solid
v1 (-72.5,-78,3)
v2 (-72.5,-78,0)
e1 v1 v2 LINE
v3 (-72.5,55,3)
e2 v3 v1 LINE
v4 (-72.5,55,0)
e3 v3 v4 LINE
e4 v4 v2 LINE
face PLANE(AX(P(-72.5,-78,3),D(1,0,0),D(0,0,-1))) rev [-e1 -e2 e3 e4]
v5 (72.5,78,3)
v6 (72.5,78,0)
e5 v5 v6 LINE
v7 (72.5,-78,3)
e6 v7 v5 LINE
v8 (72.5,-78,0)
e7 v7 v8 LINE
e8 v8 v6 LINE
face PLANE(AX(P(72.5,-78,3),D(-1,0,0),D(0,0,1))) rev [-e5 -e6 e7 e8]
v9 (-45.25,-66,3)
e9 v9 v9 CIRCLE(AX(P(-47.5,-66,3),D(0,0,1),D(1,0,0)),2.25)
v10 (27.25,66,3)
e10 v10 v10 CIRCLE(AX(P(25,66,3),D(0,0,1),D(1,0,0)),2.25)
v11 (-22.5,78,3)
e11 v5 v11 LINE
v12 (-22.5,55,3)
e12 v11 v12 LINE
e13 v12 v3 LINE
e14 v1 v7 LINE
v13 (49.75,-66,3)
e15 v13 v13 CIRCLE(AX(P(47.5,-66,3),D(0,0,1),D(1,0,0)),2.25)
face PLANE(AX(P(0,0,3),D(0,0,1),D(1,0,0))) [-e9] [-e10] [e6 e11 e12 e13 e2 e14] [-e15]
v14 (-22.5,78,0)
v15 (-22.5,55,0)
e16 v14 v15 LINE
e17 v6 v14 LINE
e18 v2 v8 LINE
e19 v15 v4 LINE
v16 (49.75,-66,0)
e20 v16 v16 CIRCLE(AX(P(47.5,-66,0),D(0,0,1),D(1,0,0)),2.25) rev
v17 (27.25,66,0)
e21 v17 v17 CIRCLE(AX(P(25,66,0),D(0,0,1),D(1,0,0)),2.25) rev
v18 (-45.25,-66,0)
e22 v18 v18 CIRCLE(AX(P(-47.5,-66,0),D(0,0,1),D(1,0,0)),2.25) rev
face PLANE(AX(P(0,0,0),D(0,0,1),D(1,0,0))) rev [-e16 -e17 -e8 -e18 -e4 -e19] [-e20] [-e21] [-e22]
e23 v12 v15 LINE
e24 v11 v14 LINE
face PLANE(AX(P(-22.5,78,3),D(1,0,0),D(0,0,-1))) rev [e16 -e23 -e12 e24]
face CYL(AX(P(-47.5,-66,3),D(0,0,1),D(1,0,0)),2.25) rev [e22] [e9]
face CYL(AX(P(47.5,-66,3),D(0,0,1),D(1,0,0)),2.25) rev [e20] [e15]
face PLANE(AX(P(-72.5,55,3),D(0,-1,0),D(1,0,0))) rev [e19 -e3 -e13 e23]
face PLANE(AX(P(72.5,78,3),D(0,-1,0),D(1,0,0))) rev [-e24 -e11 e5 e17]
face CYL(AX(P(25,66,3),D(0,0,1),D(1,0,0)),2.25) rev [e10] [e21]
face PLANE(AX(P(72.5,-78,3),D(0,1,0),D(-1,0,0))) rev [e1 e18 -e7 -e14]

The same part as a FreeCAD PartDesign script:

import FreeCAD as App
import Part
import Sketcher
from FreeCAD import Vector
Q = App.Units.Quantity

doc = App.newDocument("Part")
params = doc.addObject("Spreadsheet::Sheet", "Params")
for row, (alias, value) in enumerate([
    ("sketch1_width", "145 mm"),
    ("sketch1_height", "156 mm"),
    ("pad1_length", "3 mm"),
    ("sketch2_diameter", "4.5 mm"),
    ("hole_diameter", "4.5 mm"),
    ("hole_depth", "3 mm"),
    ("sketch3_width", "50 mm"),
    ("sketch3_height", "23 mm"),
], start=1):
    params.set(f"A{row}", alias)
    params.set(f"B{row}", "=" + value)
    params.setAlias(f"B{row}", alias)

body = doc.addObject("PartDesign::Body", "Body")

# Sketch on XY plane
sketch1 = doc.addObject("Sketcher::SketchObject", "Sketch")
body.addObject(sketch1)
sketch1.AttachmentSupport = (doc.XY_Plane, [""])
sketch1.MapMode = "FlatFace"
sketch1.addGeometry([
    Part.LineSegment(Vector(-72.5, 78, 0), Vector(-72.5, -78, 0)),
    Part.LineSegment(Vector(-72.5, -78, 0), Vector(72.5, -78, 0)),
    Part.LineSegment(Vector(72.5, -78, 0), Vector(72.5, 78, 0)),
    Part.LineSegment(Vector(72.5, 78, 0), Vector(-72.5, 78, 0)),
], False)
sketch1.addConstraint([
    Sketcher.Constraint("Coincident", 0, 2, 1, 1),
    Sketcher.Constraint("Coincident", 1, 2, 2, 1),
    Sketcher.Constraint("Coincident", 2, 2, 3, 1),
    Sketcher.Constraint("Coincident", 3, 2, 0, 1),
    Sketcher.Constraint("Vertical", 0),
    Sketcher.Constraint("Horizontal", 1),
    Sketcher.Constraint("Vertical", 2),
    Sketcher.Constraint("Horizontal", 3),
    Sketcher.Constraint("Symmetric", 0, 2, 2, 2, -1, 1),
    Sketcher.Constraint("DistanceX", 1, 1, 1, 2, Q("145 mm")),
    Sketcher.Constraint("DistanceY", 0, 2, 0, 1, Q("156 mm")),
])
sketch1.setExpression("Constraints[9]", "Params.sketch1_width")
sketch1.setExpression("Constraints[10]", "Params.sketch1_height")
pad1 = doc.addObject("PartDesign::Pad", "Pad")
body.addObject(pad1)
pad1.Profile = sketch1
pad1.setExpression("Length", "Params.pad1_length")

# Sketch on XY plane
sketch2 = doc.addObject("Sketcher::SketchObject", "Sketch001")
body.addObject(sketch2)
sketch2.AttachmentSupport = (doc.XY_Plane, [""])
sketch2.MapMode = "FlatFace"
sketch2.AttachmentOffset = App.Placement(Vector(0, 0, 3), App.Rotation())
sketch2.addGeometry([
    Part.Circle(Vector(25, 66, 0), Vector(0, 0, 1), 2.25),
    Part.Circle(Vector(-47.5, -66, 0), Vector(0, 0, 1), 2.25),
    Part.Circle(Vector(47.5, -66, 0), Vector(0, 0, 1), 2.25),
], False)
sketch2.addConstraint([
    Sketcher.Constraint("Equal", 0, 1),
    Sketcher.Constraint("Equal", 1, 2),
    Sketcher.Constraint("Symmetric", 1, 3, 2, 3, -2),
    Sketcher.Constraint("Diameter", 0, Q("4.5 mm")),
    Sketcher.Constraint("DistanceX", -1, 1, 0, 3, Q("25 mm")),
    Sketcher.Constraint("DistanceY", -1, 1, 0, 3, Q("66 mm")),
    Sketcher.Constraint("DistanceY", 1, 3, -1, 1, Q("66 mm")),
    Sketcher.Constraint("DistanceX", 1, 3, 2, 3, Q("95 mm")),
])
sketch2.setExpression("Constraints[3]", "Params.sketch2_diameter")
doc.recompute()
hole = doc.addObject("PartDesign::Hole", "Hole")
body.addObject(hole)
hole.Profile = sketch2
hole.ThreadType = "None"
hole.setExpression("Diameter", "Params.hole_diameter")
hole.DepthType = "Dimension"
hole.setExpression("Depth", "Params.hole_depth")
hole.DrillPoint = "Angled"
hole.DrillPointAngle = 118

# Sketch on XY plane
sketch3 = doc.addObject("Sketcher::SketchObject", "Sketch002")
body.addObject(sketch3)
sketch3.AttachmentSupport = (doc.XY_Plane, [""])
sketch3.MapMode = "FlatFace"
sketch3.addGeometry([
    Part.LineSegment(Vector(-22.5, 78, 0), Vector(-22.5, 55, 0)),
    Part.LineSegment(Vector(-22.5, 55, 0), Vector(-72.5, 55, 0)),
    Part.LineSegment(Vector(-72.5, 55, 0), Vector(-72.5, 78, 0)),
    Part.LineSegment(Vector(-72.5, 78, 0), Vector(-22.5, 78, 0)),
], False)
sketch3.addConstraint([
    Sketcher.Constraint("Coincident", 0, 2, 1, 1),
    Sketcher.Constraint("Coincident", 1, 2, 2, 1),
    Sketcher.Constraint("Coincident", 2, 2, 3, 1),
    Sketcher.Constraint("Coincident", 3, 2, 0, 1),
    Sketcher.Constraint("Vertical", 0),
    Sketcher.Constraint("Horizontal", 1),
    Sketcher.Constraint("Vertical", 2),
    Sketcher.Constraint("Horizontal", 3),
    Sketcher.Constraint("DistanceX", 1, 2, 1, 1, Q("50 mm")),
    Sketcher.Constraint("DistanceY", 0, 2, 0, 1, Q("23 mm")),
    Sketcher.Constraint("DistanceY", -1, 1, 0, 2, Q("55 mm")),
    Sketcher.Constraint("DistanceX", 0, 2, -1, 1, Q("22.5 mm")),
])
sketch3.setExpression("Constraints[8]", "Params.sketch3_width")
sketch3.setExpression("Constraints[9]", "Params.sketch3_height")
pocket1 = doc.addObject("PartDesign::Pocket", "Pocket")
body.addObject(pocket1)
pocket1.Profile = sketch3
pocket1.Type = "ThroughAll"
pocket1.Reversed = True

doc.recompute()
